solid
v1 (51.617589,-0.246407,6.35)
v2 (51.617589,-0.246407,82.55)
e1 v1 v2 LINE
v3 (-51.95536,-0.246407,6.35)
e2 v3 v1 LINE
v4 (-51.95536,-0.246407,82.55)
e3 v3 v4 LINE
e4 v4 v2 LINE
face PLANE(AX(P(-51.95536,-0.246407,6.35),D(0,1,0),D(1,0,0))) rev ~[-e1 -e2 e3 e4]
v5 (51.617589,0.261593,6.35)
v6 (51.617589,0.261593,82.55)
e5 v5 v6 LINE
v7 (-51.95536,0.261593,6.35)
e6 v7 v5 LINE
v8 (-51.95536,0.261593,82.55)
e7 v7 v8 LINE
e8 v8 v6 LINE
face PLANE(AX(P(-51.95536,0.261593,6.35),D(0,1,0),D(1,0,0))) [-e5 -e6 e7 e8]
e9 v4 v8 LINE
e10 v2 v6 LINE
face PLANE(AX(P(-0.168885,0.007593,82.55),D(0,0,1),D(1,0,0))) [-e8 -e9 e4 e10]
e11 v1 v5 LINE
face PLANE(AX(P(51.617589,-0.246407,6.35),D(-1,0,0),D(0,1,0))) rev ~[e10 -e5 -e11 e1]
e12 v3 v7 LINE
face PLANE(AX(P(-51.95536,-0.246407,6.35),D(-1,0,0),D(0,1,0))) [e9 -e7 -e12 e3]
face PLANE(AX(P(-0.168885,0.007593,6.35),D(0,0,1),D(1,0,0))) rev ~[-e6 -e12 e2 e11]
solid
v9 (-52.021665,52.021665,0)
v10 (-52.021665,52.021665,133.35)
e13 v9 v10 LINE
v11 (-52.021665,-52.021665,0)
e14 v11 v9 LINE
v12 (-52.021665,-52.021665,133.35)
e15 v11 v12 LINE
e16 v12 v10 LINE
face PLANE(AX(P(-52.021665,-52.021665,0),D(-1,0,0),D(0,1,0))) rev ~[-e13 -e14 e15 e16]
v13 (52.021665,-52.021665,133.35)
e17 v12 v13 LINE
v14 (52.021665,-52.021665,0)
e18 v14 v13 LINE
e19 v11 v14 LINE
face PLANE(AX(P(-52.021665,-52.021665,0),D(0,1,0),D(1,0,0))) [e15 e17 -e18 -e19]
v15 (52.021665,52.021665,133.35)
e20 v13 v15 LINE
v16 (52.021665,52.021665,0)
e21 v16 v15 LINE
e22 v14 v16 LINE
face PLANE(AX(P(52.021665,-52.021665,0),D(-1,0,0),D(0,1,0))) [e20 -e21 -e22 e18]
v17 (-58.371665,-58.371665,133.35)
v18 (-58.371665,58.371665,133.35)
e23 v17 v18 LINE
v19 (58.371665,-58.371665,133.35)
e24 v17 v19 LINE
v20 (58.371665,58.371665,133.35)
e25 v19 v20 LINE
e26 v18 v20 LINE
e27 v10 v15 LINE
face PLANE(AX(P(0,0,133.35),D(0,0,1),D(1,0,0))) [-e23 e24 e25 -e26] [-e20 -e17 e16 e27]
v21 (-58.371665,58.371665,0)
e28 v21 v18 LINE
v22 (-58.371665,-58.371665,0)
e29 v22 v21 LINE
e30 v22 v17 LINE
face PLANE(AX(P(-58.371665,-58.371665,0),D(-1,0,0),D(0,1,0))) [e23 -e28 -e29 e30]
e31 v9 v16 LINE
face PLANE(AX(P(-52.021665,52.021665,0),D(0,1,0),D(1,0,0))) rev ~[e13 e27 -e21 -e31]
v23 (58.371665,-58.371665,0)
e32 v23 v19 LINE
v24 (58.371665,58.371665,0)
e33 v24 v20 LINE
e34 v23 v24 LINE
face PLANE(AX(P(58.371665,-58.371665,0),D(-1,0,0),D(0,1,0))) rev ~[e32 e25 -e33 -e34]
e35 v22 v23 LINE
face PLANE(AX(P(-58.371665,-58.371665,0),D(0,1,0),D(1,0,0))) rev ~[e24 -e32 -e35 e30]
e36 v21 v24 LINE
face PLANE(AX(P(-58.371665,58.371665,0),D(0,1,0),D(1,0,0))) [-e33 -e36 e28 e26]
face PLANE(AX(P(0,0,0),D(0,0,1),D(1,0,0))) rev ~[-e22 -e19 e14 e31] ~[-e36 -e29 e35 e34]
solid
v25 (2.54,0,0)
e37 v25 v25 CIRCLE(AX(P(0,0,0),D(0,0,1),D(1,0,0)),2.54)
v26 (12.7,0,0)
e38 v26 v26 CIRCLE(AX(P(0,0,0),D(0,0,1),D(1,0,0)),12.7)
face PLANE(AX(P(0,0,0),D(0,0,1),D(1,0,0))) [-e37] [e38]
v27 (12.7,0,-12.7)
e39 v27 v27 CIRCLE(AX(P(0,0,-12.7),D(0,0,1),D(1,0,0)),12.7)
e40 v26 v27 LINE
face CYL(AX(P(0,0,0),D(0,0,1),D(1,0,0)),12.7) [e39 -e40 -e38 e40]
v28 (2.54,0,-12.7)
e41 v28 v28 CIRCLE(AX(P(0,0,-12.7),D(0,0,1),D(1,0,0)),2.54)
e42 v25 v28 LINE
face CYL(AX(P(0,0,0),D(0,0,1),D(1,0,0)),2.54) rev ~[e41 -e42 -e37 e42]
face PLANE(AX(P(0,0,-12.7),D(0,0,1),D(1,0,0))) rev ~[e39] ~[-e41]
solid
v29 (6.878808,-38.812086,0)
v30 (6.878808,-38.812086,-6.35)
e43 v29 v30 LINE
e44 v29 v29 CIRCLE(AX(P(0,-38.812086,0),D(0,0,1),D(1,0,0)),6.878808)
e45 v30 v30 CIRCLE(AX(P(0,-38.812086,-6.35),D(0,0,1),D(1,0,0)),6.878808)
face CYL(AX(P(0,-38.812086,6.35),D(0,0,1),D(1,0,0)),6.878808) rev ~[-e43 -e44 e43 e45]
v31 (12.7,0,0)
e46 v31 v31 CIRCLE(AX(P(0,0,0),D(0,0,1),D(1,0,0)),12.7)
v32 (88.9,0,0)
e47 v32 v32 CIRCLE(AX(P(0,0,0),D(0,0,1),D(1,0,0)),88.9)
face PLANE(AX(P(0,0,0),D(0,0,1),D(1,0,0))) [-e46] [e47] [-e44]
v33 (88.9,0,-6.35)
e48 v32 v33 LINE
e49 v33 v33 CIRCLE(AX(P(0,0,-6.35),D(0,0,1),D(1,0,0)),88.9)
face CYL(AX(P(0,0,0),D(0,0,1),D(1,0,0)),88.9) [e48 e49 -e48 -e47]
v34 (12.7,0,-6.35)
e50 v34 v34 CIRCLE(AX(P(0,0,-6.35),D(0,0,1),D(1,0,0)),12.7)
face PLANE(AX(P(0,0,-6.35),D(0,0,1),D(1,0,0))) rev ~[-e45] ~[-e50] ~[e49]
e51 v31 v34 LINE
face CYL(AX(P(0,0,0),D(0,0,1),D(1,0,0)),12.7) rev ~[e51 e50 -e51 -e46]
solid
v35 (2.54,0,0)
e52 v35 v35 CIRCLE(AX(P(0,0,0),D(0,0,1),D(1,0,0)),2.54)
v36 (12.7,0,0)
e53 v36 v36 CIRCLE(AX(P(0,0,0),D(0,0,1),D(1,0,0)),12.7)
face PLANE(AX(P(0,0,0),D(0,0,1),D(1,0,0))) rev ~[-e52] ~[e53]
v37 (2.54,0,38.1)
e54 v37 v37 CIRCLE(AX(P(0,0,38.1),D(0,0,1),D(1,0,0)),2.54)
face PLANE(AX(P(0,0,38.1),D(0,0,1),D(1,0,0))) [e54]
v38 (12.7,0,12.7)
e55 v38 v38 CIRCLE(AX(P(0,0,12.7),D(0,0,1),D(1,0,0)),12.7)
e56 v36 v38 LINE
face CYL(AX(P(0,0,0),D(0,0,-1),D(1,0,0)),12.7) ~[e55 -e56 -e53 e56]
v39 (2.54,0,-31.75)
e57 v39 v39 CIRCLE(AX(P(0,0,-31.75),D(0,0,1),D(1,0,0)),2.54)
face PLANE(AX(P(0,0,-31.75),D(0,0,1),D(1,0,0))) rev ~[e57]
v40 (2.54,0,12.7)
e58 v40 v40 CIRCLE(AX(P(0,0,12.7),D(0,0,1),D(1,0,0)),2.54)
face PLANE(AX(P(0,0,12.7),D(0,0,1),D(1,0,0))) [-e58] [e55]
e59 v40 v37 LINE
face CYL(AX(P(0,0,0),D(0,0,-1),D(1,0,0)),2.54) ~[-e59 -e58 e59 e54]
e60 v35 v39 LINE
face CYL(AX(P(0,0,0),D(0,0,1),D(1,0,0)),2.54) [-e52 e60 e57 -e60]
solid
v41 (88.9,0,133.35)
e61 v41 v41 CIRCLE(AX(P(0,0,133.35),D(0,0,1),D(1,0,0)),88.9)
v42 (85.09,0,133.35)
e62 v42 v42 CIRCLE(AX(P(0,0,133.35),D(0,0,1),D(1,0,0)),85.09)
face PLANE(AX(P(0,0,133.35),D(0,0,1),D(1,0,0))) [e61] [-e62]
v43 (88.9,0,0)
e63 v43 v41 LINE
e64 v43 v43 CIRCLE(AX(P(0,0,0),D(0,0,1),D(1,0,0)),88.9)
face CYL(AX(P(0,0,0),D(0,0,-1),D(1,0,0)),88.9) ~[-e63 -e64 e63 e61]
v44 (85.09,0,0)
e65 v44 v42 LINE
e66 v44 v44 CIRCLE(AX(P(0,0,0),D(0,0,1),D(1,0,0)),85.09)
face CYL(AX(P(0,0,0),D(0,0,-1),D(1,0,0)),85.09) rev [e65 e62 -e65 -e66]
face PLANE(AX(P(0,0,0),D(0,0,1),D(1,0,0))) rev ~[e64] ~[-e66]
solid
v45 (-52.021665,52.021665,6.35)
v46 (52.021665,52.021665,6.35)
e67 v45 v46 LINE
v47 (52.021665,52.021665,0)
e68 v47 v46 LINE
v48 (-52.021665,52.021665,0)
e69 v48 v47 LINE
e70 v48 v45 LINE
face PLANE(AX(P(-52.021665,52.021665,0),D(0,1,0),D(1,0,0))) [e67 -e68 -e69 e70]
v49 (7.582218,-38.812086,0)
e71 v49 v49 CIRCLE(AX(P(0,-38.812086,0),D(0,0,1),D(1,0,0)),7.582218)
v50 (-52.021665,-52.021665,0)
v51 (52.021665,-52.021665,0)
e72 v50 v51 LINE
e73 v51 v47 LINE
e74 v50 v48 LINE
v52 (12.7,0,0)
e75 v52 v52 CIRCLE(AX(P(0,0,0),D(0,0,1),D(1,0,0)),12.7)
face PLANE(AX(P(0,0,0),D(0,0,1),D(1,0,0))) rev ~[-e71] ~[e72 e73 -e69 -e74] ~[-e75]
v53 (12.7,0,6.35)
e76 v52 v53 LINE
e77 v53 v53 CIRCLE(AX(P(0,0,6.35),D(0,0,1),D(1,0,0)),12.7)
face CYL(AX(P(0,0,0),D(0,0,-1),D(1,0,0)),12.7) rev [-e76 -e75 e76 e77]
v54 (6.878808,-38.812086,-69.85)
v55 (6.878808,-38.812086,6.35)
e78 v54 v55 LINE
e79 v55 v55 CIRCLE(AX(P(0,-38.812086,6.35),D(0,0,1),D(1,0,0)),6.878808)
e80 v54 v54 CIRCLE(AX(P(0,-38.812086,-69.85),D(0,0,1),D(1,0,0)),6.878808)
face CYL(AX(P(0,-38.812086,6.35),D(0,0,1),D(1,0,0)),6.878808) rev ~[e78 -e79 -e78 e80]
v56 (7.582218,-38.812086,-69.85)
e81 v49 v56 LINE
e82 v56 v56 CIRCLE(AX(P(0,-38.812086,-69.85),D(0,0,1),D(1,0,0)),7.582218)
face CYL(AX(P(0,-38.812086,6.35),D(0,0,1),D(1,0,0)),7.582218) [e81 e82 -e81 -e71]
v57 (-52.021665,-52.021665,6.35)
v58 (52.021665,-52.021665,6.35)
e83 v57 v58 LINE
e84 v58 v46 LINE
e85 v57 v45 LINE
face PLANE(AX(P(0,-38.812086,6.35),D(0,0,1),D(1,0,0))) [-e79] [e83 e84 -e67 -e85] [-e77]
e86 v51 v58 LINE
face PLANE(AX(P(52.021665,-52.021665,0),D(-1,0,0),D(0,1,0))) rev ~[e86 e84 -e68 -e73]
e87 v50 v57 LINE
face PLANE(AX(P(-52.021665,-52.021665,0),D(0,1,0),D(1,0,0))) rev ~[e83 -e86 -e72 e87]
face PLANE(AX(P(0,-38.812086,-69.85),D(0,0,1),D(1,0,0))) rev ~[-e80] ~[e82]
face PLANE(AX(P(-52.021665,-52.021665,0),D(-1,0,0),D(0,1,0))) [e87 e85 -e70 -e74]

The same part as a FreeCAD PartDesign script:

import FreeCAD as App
import Part
import Sketcher
from FreeCAD import Vector
Q = App.Units.Quantity


def add_polygon(sketch, points):
    """Adds a closed chain of lines whose ends are joined by coincident constraints."""
    first, n = sketch.GeometryCount, len(points)
    for a, b in zip(points, points[1:] + points[:1]):
        sketch.addGeometry(Part.LineSegment(App.Vector(*a, 0), App.Vector(*b, 0)), False)
    for i in range(n):
        sketch.addConstraint(Sketcher.Constraint("Coincident", first + i, 2, first + (i + 1) % n, 1))

doc = App.newDocument("Part")
body = doc.addObject("PartDesign::Body", "Body")

sketch1 = body.newObject("Sketcher::SketchObject", "Sketch")
sketch1.AttachmentSupport = (doc.getObject("XY_Plane"), [""])
sketch1.MapMode = "FlatFace"
sketch1.addGeometry(Part.Circle(Vector(0, 0, 0), Vector(0, 0, 1), 88.9), False)
sketch1.addGeometry(Part.Circle(Vector(0, 0, 0), Vector(0, 0, 1), 85.09), False)
sketch1.addConstraint(Sketcher.Constraint("Coincident", 0, 3, -1, 1))
sketch1.addConstraint(Sketcher.Constraint("Coincident", 1, 3, -1, 1))
sketch1.addConstraint(Sketcher.Constraint("Diameter", 0, Q("7 in")))
sketch1.addConstraint(Sketcher.Constraint("Diameter", 1, Q("6.7 in")))
pad1 = body.newObject("PartDesign::Pad", "Pad")
pad1.Profile = sketch1
pad1.Length = Q("5.25 in")

sketch2 = body.newObject("Sketcher::SketchObject", "Sketch001")
sketch2.AttachmentSupport = (doc.getObject("XY_Plane"), [""])
sketch2.MapMode = "FlatFace"
sketch2.AttachmentOffset = App.Placement(Vector(0, 0, 0.25 * 25.4), App.Rotation())
sketch2.addGeometry(Part.Circle(Vector(0, -38.812086, 0), Vector(0, 0, 1), 6.878808), False)
sketch2.addConstraint(Sketcher.Constraint("PointOnObject", 0, 3, -2))
sketch2.addConstraint(Sketcher.Constraint("Diameter", 0, 13.757616))
sketch2.addConstraint(Sketcher.Constraint("DistanceY", 0, 3, -1, 1, 38.812086))
pocket1 = body.newObject("PartDesign::Pocket", "Pocket")
pocket1.Profile = sketch2
pocket1.Length = Q("0.5 in")
body2 = doc.addObject("PartDesign::Body", "Body001")

sketch3 = body2.newObject("Sketcher::SketchObject", "Sketch002")
sketch3.AttachmentSupport = (doc.getObject("XY_Plane001"), [""])
sketch3.MapMode = "FlatFace"
add_polygon(sketch3, [(-58.371665, 58.371665), (-58.371665, -58.371665), (58.371665, -58.371665), (58.371665, 58.371665)])
add_polygon(sketch3, [(52.021665, -52.021665), (-52.021665, -52.021665), (-52.021665, 52.021665), (52.021665, 52.021665)])
sketch3.addConstraint(Sketcher.Constraint("Vertical", 0))
sketch3.addConstraint(Sketcher.Constraint("Horizontal", 1))
sketch3.addConstraint(Sketcher.Constraint("Vertical", 2))
sketch3.addConstraint(Sketcher.Constraint("Horizontal", 3))
sketch3.addConstraint(Sketcher.Constraint("Horizontal", 4))
sketch3.addConstraint(Sketcher.Constraint("Vertical", 5))
sketch3.addConstraint(Sketcher.Constraint("Horizontal", 6))
sketch3.addConstraint(Sketcher.Constraint("Vertical", 7))
sketch3.addConstraint(Sketcher.Constraint("Symmetric", 0, 2, 2, 2, -1, 1))
sketch3.addConstraint(Sketcher.Constraint("Symmetric", 4, 2, 6, 2, -1, 1))
sketch3.addConstraint(Sketcher.Constraint("Equal", 3, 0))
sketch3.addConstraint(Sketcher.Constraint("Equal", 6, 5))
sketch3.addConstraint(Sketcher.Constraint("DistanceX", 0, 2, 4, 2, Q("0.25 in")))
sketch3.addConstraint(Sketcher.Constraint("DistanceX", 1, 1, 1, 2, 116.74333))
pad2 = body2.newObject("PartDesign::Pad", "Pad001")
pad2.Profile = sketch3
pad2.Length = Q("5.25 in")
body3 = doc.addObject("PartDesign::Body", "Body002")

sketch4 = body3.newObject("Sketcher::SketchObject", "Sketch003")
sketch4.AttachmentSupport = (doc.getObject("XY_Plane002"), [""])
sketch4.MapMode = "FlatFace"
sketch4.addGeometry(Part.Circle(Vector(0, 0, 0), Vector(0, 0, 1), 12.7), False)
sketch4.addGeometry(Part.Circle(Vector(0, 0, 0), Vector(0, 0, 1), 2.54), False)
sketch4.addConstraint(Sketcher.Constraint("Coincident", 0, 3, -1, 1))
sketch4.addConstraint(Sketcher.Constraint("Coincident", 1, 3, -1, 1))
sketch4.addConstraint(Sketcher.Constraint("Diameter", 0, Q("1 in")))
sketch4.addConstraint(Sketcher.Constraint("Diameter", 1, Q("0.2 in")))
pad3 = body3.newObject("PartDesign::Pad", "Pad002")
pad3.Profile = sketch4
pad3.Length = Q("0.5 in")

sketch5 = body3.newObject("Sketcher::SketchObject", "Sketch004")
sketch5.AttachmentSupport = (doc.getObject("XY_Plane002"), [""])
sketch5.MapMode = "FlatFace"
sketch5.addGeometry(Part.Circle(Vector(0, 0, 0), Vector(0, 0, 1), 2.54), False)
sketch5.addConstraint(Sketcher.Constraint("Coincident", 0, 3, -1, 1))
sketch5.addConstraint(Sketcher.Constraint("Diameter", 0, Q("0.2 in")))
pad4 = body3.newObject("PartDesign::Pad", "Pad003")
pad4.Profile = sketch5
pad4.Length = Q("1.5 in")

sketch6 = body3.newObject("Sketcher::SketchObject", "Sketch005")
sketch6.AttachmentSupport = (doc.getObject("XY_Plane002"), [""])
sketch6.MapMode = "FlatFace"
sketch6.addGeometry(Part.Circle(Vector(0, 0, 0), Vector(0, 0, 1), 2.54), False)
sketch6.addConstraint(Sketcher.Constraint("Coincident", 0, 3, -1, 1))
sketch6.addConstraint(Sketcher.Constraint("Diameter", 0, Q("0.2 in")))
pad5 = body3.newObject("PartDesign::Pad", "Pad004")
pad5.Profile = sketch6
pad5.Length = Q("1.25 in")
pad5.Reversed = True
body4 = doc.addObject("PartDesign::Body", "Body003")

sketch7 = body4.newObject("Sketcher::SketchObject", "Sketch006")
sketch7.AttachmentSupport = (doc.getObject("XY_Plane003"), [""])
sketch7.MapMode = "FlatFace"
add_polygon(sketch7, [(-52.021665, 52.021665), (-52.021665, -52.021665), (52.021665, -52.021665), (52.021665, 52.021665)])
sketch7.addGeometry(Part.Circle(Vector(0, 0, 0), Vector(0, 0, 1), 12.7), False)
sketch7.addConstraint(Sketcher.Constraint("Vertical", 0))
sketch7.addConstraint(Sketcher.Constraint("Horizontal", 1))
sketch7.addConstraint(Sketcher.Constraint("Vertical", 2))
sketch7.addConstraint(Sketcher.Constraint("Horizontal", 3))
sketch7.addConstraint(Sketcher.Constraint("Coincident", 4, 3, -1, 1))
sketch7.addConstraint(Sketcher.Constraint("Symmetric", 0, 2, 2, 2, -1, 1))
sketch7.addConstraint(Sketcher.Constraint("Equal", 3, 0))
sketch7.addConstraint(Sketcher.Constraint("Diameter", 4, Q("1 in")))
sketch7.addConstraint(Sketcher.Constraint("DistanceX", 1, 1, 1, 2, 104.04333))
pad6 = body4.newObject("PartDesign::Pad", "Pad005")
pad6.Profile = sketch7
pad6.Length = Q("0.25 in")

sketch8 = body4.newObject("Sketcher::SketchObject", "Sketch007")
sketch8.AttachmentSupport = (doc.getObject("XY_Plane003"), [""])
sketch8.MapMode = "FlatFace"
sketch8.AttachmentOffset = App.Placement(Vector(0, 0, 0.25 * 25.4), App.Rotation())
sketch8.addGeometry(Part.Circle(Vector(0, -38.812086, 0), Vector(0, 0, 1), 7.582218), False)
sketch8.addGeometry(Part.Circle(Vector(0, -38.812086, 0), Vector(0, 0, 1), 6.878808), False)
sketch8.addConstraint(Sketcher.Constraint("Coincident", 1, 3, 0, 3))
sketch8.addConstraint(Sketcher.Constraint("PointOnObject", 0, 3, -2))
sketch8.addConstraint(Sketcher.Constraint("Diameter", 0, 15.164436))
sketch8.addConstraint(Sketcher.Constraint("Diameter", 1, 13.757616))
sketch8.addConstraint(Sketcher.Constraint("DistanceY", 0, 3, -1, 1, 38.812086))
pad7 = body4.newObject("PartDesign::Pad", "Pad006")
pad7.Profile = sketch8
pad7.Length = Q("3 in")
pad7.Reversed = True
body5 = doc.addObject("PartDesign::Body", "Body004")

sketch9 = body5.newObject("Sketcher::SketchObject", "Sketch008")
sketch9.AttachmentSupport = (doc.getObject("XY_Plane004"), [""])
sketch9.MapMode = "FlatFace"
sketch9.addGeometry(Part.Circle(Vector(0, 0, 0), Vector(0, 0, 1), 88.9), False)
sketch9.addGeometry(Part.Circle(Vector(0, 0, 0), Vector(0, 0, 1), 12.7), False)
sketch9.addConstraint(Sketcher.Constraint("Coincident", 0, 3, -1, 1))
sketch9.addConstraint(Sketcher.Constraint("Coincident", 1, 3, -1, 1))
sketch9.addConstraint(Sketcher.Constraint("Diameter", 0, Q("7 in")))
sketch9.addConstraint(Sketcher.Constraint("Diameter", 1, Q("1 in")))
pad8 = body5.newObject("PartDesign::Pad", "Pad007")
pad8.Profile = sketch9
pad8.Length = Q("0.25 in")
pad8.Reversed = True
body6 = doc.addObject("PartDesign::Body", "Body005")

sketch10 = body6.newObject("Sketcher::SketchObject", "Sketch009")
sketch10.AttachmentSupport = (doc.getObject("XY_Plane005"), [""])
sketch10.MapMode = "FlatFace"
sketch10.addGeometry(Part.Circle(Vector(0, 0, 0), Vector(0, 0, 1), 12.7), False)
sketch10.addGeometry(Part.Circle(Vector(0, 0, 0), Vector(0, 0, 1), 2.54), False)
sketch10.addConstraint(Sketcher.Constraint("Coincident", 0, 3, -1, 1))
sketch10.addConstraint(Sketcher.Constraint("Coincident", 1, 3, -1, 1))
sketch10.addConstraint(Sketcher.Constraint("Diameter", 0, Q("1 in")))
sketch10.addConstraint(Sketcher.Constraint("Diameter", 1, Q("0.2 in")))
pad9 = body6.newObject("PartDesign::Pad", "Pad008")
pad9.Profile = sketch10
pad9.Length = Q("0.5 in")
pad9.Reversed = True
body7 = doc.addObject("PartDesign::Body", "Body006")

sketch11 = body7.newObject("Sketcher::SketchObject", "Sketch010")
sketch11.AttachmentSupport = (doc.getObject("XY_Plane006"), [""])
sketch11.MapMode = "FlatFace"
sketch11.AttachmentOffset = App.Placement(Vector(0, 0, 0.25 * 25.4), App.Rotation())
sketch11.addGeometry(Part.Circle(Vector(0, -38.812086, 0), Vector(0, 0, 1), 6.878808), False)
sketch11.addConstraint(Sketcher.Constraint("PointOnObject", 0, 3, -2))
sketch11.addConstraint(Sketcher.Constraint("Diameter", 0, 13.757616))
sketch11.addConstraint(Sketcher.Constraint("DistanceY", 0, 3, -1, 1, 38.812086))
pad10 = body7.newObject("PartDesign::Pad", "Pad009")
pad10.Profile = sketch11
pad10.Length = 76.201
pad10.Reversed = True
doc.recompute()

body8 = doc.addObject("PartDesign::Body", "Body007")
body8.BaseFeature = body7
boolean = body4.newObject("PartDesign::Boolean", "Boolean")
boolean.Type = "Cut"
boolean.addObjects([body8])
doc.recompute()

boolean2 = body5.newObject("PartDesign::Boolean", "Boolean001")
boolean2.Type = "Cut"
boolean2.addObjects([body7])
body9 = doc.addObject("PartDesign::Body", "Body008")

sketch12 = body9.newObject("Sketcher::SketchObject", "Sketch011")
sketch12.AttachmentSupport = (doc.getObject("XY_Plane008"), [""])
sketch12.MapMode = "FlatFace"
sketch12.AttachmentOffset = App.Placement(Vector(0, 0, 0.25 * 25.4), App.Rotation())
add_polygon(sketch12, [(-51.95536, 0.261593), (-51.95536, -0.246407), (51.617589, -0.246407), (51.617589, 0.261593)])
sketch12.addConstraint(Sketcher.Constraint("Vertical", 0))
sketch12.addConstraint(Sketcher.Constraint("Horizontal", 1))
sketch12.addConstraint(Sketcher.Constraint("Vertical", 2))
sketch12.addConstraint(Sketcher.Constraint("Horizontal", 3))
sketch12.addConstraint(Sketcher.Constraint("DistanceY", 0, 2, 0, 1, Q("0.02 in")))
sketch12.addConstraint(Sketcher.Constraint("DistanceX", 1, 1, 1, 2, 103.572949))
sketch12.addConstraint(Sketcher.Constraint("DistanceX", 0, 2, -1, 1, 51.95536))
sketch12.addConstraint(Sketcher.Constraint("DistanceY", 0, 2, -1, 1, 0.246407))
pad11 = body9.newObject("PartDesign::Pad", "Pad010")
pad11.Profile = sketch12
pad11.Length = Q("3 in")

doc.recompute()
